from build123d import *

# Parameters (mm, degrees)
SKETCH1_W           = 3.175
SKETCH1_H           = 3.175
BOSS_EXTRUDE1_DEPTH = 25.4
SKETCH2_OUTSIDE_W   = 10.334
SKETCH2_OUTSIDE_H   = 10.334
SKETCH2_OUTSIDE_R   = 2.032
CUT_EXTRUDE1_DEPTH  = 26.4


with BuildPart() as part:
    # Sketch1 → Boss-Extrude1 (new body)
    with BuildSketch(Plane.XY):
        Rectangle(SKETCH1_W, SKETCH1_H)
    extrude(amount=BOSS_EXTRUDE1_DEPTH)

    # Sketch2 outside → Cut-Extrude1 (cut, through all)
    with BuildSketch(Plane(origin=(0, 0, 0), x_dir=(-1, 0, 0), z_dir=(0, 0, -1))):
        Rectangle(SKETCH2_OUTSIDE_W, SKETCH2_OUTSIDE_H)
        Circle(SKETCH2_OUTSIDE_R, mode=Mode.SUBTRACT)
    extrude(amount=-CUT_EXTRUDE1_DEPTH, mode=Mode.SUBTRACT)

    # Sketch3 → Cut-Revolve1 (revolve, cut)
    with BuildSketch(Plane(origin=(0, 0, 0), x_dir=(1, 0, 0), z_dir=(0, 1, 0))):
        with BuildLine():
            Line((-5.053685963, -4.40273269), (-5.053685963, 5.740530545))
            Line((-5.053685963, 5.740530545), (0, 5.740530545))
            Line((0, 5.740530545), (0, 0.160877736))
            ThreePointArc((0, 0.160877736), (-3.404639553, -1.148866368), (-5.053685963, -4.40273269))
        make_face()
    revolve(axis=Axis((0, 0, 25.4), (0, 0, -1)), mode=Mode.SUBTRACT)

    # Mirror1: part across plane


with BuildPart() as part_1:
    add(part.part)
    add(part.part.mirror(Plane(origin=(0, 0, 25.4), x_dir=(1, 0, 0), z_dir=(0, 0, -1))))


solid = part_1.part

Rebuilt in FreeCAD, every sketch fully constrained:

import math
import FreeCAD as App
import Part
import Sketcher
Q = App.Units.Quantity

doc = App.newDocument("Part")
params = doc.addObject("Spreadsheet::Sheet", "Params")
for row, (alias, value) in enumerate([
    ("sketch1_width", "0.125 in"),
    ("pad1_length", "1 in"),
    ("sketch2_diameter", "0.16 in"),
    ("sketch3_radius", "0.2 in"),
    ("groove_angle", "360 deg"),
], start=1):
    params.set(f"A{row}", alias)
    params.set(f"B{row}", "=" + value)
    params.setAlias(f"B{row}", alias)

body = doc.addObject("PartDesign::Body", "Body")

# Sketch on XY plane
sketch1 = doc.addObject("Sketcher::SketchObject", "Sketch")
body.addObject(sketch1)
sketch1.AttachmentSupport = (doc.XY_Plane, [""])
sketch1.MapMode = "FlatFace"
sketch1.addGeometry([
    Part.LineSegment(App.Vector(-1.6, 1.6, 0), App.Vector(-1.6, -1.6, 0)),
    Part.LineSegment(App.Vector(-1.6, -1.6, 0), App.Vector(1.6, -1.6, 0)),
    Part.LineSegment(App.Vector(1.6, -1.6, 0), App.Vector(1.6, 1.6, 0)),
    Part.LineSegment(App.Vector(1.6, 1.6, 0), App.Vector(-1.6, 1.6, 0)),
], False)
sketch1.addConstraint([
    Sketcher.Constraint("Coincident", 0, 2, 1, 1),
    Sketcher.Constraint("Coincident", 1, 2, 2, 1),
    Sketcher.Constraint("Coincident", 2, 2, 3, 1),
    Sketcher.Constraint("Coincident", 3, 2, 0, 1),
    Sketcher.Constraint("Vertical", 0),
    Sketcher.Constraint("Horizontal", 1),
    Sketcher.Constraint("Vertical", 2),
    Sketcher.Constraint("Horizontal", 3),
    Sketcher.Constraint("Symmetric", 0, 2, 2, 2, -1, 1),
    Sketcher.Constraint("Equal", 3, 0),
    Sketcher.Constraint("DistanceX", 1, 1, 1, 2, Q("0.125 in")),
])
sketch1.setExpression("Constraints[10]", "Params.sketch1_width")
pad1 = doc.addObject("PartDesign::Pad", "Pad")
body.addObject(pad1)
pad1.Profile = sketch1
pad1.setExpression("Length", "Params.pad1_length")

# Sketch on XY plane
sketch2 = doc.addObject("Sketcher::SketchObject", "Sketch001")
body.addObject(sketch2)
sketch2.AttachmentSupport = (doc.XY_Plane, [""])
sketch2.MapMode = "FlatFace"
sketch2.addGeometry([
    Part.LineSegment(App.Vector(5.2, 5.2, 0), App.Vector(5.2, -5.2, 0)),  # 0
    Part.LineSegment(App.Vector(5.2, -5.2, 0), App.Vector(-5.2, -5.2, 0)),  # 1
    Part.LineSegment(App.Vector(-5.2, -5.2, 0), App.Vector(-5.2, 5.2, 0)),  # 2
    Part.LineSegment(App.Vector(-5.2, 5.2, 0), App.Vector(5.2, 5.2, 0)),  # 3
    Part.Circle(App.Vector(0, 0, 0), App.Vector(0, 0, 1), 2),  # 4
], False)
sketch2.addConstraint([
    Sketcher.Constraint("Coincident", 0, 2, 1, 1),
    Sketcher.Constraint("Coincident", 1, 2, 2, 1),
    Sketcher.Constraint("Coincident", 2, 2, 3, 1),
    Sketcher.Constraint("Coincident", 3, 2, 0, 1),
    Sketcher.Constraint("Vertical", 0),
    Sketcher.Constraint("Horizontal", 1),
    Sketcher.Constraint("Vertical", 2),
    Sketcher.Constraint("Horizontal", 3),
    Sketcher.Constraint("Coincident", 4, 3, -1, 1),
    Sketcher.Constraint("Symmetric", 0, 2, 2, 2, -1, 1),
    Sketcher.Constraint("Equal", 3, 0),
    Sketcher.Constraint("Diameter", 4, Q("0.16 in")),
    Sketcher.Constraint("DistanceX", 1, 2, 1, 1, 10.334),
])
sketch2.setExpression("Constraints[11]", "Params.sketch2_diameter")
pocket1 = doc.addObject("PartDesign::Pocket", "Pocket")
body.addObject(pocket1)
pocket1.Profile = sketch2
pocket1.Type = "ThroughAll"
pocket1.Reversed = True

# Sketch on XZ plane
sketch3 = doc.addObject("Sketcher::SketchObject", "Sketch002")
body.addObject(sketch3)
sketch3.AttachmentSupport = (doc.XZ_Plane, [""])
sketch3.MapMode = "FlatFace"
sketch3.addGeometry([
    Part.LineSegment(App.Vector(-5, -6, 0), App.Vector(-5, 4, 0)),
    Part.ArcOfCircle(Part.Circle(App.Vector(0, 5, 0), App.Vector(0, 0, 1), 5), math.radians(-174), math.radians(-90)),
    Part.LineSegment(App.Vector(0, 0, 0), App.Vector(0, -6, 0)),
    Part.LineSegment(App.Vector(0, -6, 0), App.Vector(-5, -6, 0)),
], False)
sketch3.addConstraint([
    Sketcher.Constraint("Coincident", 0, 2, 1, 1),
    Sketcher.Constraint("Coincident", 1, 2, 2, 1),
    Sketcher.Constraint("Coincident", 2, 2, 3, 1),
    Sketcher.Constraint("Coincident", 3, 2, 0, 1),
    Sketcher.Constraint("Vertical", 0),
    Sketcher.Constraint("Vertical", 2),
    Sketcher.Constraint("Horizontal", 3),
    Sketcher.Constraint("PointOnObject", 1, 3, -2),
    Sketcher.Constraint("PointOnObject", 1, 2, -2),
    Sketcher.Constraint("Radius", 1, Q("0.2 in")),
    Sketcher.Constraint("DistanceX", 3, 2, 3, 1, 5.053686),
    Sketcher.Constraint("DistanceY", 0, 1, 0, 2, 10.143263),
    Sketcher.Constraint("DistanceY", 2, 2, -1, 1, 5.740531),
])
sketch3.setExpression("Constraints[9]", "Params.sketch3_radius")
groove = doc.addObject("PartDesign::Groove", "Groove")
body.addObject(groove)
groove.Profile = sketch3
groove.ReferenceAxis = (sketch3, ["V_Axis"])
groove.setExpression("Angle", "Params.groove_angle")
body2 = doc.addObject("PartDesign::Body", "Body001")
doc.recompute()

body2.BaseFeature = body
doc.recompute()

mirroring = doc.addObject("Part::Mirroring", "Mirroring")
mirroring.Source = body
mirroring.Base = App.Vector(0, 0, 25.4)
mirroring.Normal = App.Vector(0, 0, -1)
body3 = doc.addObject("PartDesign::Body", "Body002")
body3.BaseFeature = mirroring
boolean = doc.addObject("PartDesign::Boolean", "Boolean")
body2.addObject(boolean)
boolean.Type = "Fuse"
boolean.addObjects([body3])
doc.recompute()
mirroring.Visibility = False

doc.recompute()
